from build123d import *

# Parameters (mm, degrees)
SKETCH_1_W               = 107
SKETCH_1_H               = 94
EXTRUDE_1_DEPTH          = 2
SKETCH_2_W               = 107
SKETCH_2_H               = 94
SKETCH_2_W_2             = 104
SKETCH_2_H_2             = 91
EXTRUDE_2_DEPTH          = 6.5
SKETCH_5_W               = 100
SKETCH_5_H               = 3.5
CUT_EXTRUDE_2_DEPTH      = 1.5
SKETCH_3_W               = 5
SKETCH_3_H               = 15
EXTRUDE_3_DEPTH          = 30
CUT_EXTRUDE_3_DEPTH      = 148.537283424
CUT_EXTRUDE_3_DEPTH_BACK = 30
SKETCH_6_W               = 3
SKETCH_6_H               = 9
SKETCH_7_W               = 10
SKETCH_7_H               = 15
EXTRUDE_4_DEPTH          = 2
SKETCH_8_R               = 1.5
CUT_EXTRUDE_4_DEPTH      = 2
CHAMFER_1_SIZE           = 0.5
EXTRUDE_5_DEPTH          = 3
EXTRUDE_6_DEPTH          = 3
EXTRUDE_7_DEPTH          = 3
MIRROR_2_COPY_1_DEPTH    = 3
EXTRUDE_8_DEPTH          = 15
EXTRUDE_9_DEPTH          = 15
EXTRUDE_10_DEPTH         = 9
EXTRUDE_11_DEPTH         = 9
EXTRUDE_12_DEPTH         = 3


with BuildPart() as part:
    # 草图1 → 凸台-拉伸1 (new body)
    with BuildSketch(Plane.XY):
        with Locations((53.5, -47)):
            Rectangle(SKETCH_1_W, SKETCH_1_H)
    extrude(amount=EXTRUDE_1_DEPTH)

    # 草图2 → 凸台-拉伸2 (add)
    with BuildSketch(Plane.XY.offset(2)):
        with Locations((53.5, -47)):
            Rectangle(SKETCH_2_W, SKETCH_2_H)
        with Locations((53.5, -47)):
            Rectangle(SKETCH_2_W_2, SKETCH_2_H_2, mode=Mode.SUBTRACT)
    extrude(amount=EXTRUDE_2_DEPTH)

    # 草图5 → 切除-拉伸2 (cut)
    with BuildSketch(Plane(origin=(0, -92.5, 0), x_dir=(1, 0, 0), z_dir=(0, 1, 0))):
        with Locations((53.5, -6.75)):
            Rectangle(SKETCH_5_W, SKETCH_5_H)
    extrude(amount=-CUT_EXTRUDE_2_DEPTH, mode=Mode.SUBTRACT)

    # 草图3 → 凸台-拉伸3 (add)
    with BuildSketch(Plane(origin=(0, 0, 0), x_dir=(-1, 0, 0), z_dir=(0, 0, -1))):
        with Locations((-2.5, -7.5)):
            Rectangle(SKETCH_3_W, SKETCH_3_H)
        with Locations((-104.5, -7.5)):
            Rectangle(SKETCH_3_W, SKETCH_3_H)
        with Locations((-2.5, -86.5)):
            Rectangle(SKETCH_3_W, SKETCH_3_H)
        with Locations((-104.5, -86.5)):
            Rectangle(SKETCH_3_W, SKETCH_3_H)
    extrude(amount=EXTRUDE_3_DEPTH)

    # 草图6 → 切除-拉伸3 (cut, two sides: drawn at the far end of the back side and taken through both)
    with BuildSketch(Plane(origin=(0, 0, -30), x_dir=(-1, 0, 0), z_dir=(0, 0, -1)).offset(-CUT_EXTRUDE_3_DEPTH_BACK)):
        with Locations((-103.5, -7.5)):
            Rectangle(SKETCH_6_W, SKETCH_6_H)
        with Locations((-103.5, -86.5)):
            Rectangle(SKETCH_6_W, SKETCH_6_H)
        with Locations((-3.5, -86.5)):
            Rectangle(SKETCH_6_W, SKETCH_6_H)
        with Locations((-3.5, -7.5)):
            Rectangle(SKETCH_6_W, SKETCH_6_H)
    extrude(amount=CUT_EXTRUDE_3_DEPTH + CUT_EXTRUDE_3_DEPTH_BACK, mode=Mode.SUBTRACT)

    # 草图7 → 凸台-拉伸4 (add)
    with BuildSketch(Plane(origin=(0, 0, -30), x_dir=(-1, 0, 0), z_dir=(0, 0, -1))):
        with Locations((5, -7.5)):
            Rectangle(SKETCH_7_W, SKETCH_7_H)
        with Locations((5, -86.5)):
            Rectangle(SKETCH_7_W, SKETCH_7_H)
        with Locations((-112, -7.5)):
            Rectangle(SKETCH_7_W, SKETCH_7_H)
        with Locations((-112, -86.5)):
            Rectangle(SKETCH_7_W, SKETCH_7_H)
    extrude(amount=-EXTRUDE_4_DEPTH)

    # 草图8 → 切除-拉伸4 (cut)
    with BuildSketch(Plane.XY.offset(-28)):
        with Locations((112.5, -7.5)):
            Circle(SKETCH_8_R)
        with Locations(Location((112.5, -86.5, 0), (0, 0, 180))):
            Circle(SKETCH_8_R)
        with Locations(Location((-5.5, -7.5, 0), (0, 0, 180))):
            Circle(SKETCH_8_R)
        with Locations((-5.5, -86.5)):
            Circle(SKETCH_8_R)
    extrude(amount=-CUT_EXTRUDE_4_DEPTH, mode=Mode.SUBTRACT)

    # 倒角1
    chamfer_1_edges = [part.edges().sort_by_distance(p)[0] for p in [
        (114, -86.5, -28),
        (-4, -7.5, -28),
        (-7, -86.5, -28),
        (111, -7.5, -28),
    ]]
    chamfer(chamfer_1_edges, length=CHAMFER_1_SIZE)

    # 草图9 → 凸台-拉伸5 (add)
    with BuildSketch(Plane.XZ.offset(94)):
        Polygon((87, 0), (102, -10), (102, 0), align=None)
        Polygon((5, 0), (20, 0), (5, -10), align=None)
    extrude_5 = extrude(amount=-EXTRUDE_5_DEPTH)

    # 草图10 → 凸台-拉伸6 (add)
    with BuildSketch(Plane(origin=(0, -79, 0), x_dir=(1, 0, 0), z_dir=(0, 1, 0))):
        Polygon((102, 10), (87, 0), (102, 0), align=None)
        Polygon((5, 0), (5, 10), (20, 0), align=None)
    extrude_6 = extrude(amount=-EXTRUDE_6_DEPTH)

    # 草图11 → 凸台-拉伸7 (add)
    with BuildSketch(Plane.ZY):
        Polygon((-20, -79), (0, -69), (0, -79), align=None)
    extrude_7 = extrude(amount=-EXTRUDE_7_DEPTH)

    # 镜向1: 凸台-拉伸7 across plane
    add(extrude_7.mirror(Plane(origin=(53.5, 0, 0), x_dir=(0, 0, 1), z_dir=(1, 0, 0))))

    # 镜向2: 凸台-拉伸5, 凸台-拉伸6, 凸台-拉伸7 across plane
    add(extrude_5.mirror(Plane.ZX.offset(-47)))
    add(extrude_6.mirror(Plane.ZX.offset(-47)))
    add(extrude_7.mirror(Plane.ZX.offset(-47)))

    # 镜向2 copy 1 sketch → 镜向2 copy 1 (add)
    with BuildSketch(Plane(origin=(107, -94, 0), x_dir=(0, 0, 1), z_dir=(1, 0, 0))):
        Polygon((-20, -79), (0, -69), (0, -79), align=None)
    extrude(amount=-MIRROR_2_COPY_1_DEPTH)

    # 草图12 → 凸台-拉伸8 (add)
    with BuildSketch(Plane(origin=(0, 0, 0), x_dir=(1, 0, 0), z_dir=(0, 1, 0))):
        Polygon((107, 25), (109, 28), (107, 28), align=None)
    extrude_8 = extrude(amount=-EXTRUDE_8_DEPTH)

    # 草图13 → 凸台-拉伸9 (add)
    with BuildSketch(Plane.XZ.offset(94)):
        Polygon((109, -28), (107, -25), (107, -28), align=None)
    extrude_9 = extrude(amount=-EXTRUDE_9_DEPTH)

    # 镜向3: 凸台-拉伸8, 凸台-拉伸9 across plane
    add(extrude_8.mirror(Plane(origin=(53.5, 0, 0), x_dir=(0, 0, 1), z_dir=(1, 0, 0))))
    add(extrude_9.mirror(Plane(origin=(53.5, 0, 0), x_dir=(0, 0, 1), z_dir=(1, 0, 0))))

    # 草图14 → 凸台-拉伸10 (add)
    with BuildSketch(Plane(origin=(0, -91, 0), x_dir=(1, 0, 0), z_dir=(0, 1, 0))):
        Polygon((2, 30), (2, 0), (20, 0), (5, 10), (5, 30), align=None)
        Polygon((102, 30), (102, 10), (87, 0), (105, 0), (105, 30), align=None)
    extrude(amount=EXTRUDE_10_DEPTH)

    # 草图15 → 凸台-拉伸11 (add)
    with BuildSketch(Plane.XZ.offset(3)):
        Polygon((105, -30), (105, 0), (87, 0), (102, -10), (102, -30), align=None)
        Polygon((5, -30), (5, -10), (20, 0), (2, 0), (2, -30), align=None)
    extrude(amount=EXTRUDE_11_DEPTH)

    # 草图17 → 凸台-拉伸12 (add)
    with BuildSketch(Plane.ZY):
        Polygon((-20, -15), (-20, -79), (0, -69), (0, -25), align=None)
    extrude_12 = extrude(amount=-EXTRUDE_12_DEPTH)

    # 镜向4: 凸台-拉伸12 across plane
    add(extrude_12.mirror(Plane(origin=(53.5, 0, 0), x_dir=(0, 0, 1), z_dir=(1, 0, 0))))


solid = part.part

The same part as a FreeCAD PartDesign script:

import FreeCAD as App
import Part
import Sketcher
from FreeCAD import Vector
Q = App.Units.Quantity


def edges_at(feature, points):
    """Names of the edges that pass closest to the given points."""
    edges = feature.Shape.Edges
    near = lambda p: min(range(len(edges)), key=lambda i: edges[i].distToShape(Part.Vertex(*p))[0])
    return sorted({f"Edge{near(p) + 1}" for p in points})

doc = App.newDocument("Part")
params = doc.addObject("Spreadsheet::Sheet", "Params")
for row, (alias, value) in enumerate([
    ("sketch1_width", "107 mm"),
    ("sketch1_height", "94 mm"),
    ("pad1_length", "2 mm"),
    ("sketch2_width", "107 mm"),
    ("sketch2_width2", "104 mm"),
    ("sketch2_height", "94 mm"),
    ("sketch2_height2", "91 mm"),
    ("pad2_length", "6.5 mm"),
    ("sketch3_width", "100 mm"),
    ("sketch3_height", "3.5 mm"),
    ("pocket1_length", "1.5 mm"),
    ("sketch4_width", "5 mm"),
    ("sketch4_height", "15 mm"),
    ("pad3_length", "30 mm"),
    ("sketch5_width", "3 mm"),
    ("sketch5_height", "9 mm"),
    ("pocket2_length", "148.537283 mm"),
    ("pocket2_length2", "30 mm"),
    ("sketch6_width", "10 mm"),
    ("sketch6_height", "15 mm"),
    ("pad4_length", "2 mm"),
    ("sketch7_diameter", "3 mm"),
    ("pocket3_length", "2 mm"),
    ("chamfer_size", "0.5 mm"),
    ("sketch8_width", "15 mm"),
    ("sketch8_height", "10 mm"),
    ("pad5_length", "3 mm"),
    ("sketch9_width", "15 mm"),
    ("sketch9_height", "10 mm"),
    ("pad6_length", "3 mm"),
    ("sketch10_width", "10 mm"),
    ("sketch10_height", "20 mm"),
    ("pad7_length", "3 mm"),
    ("sketch11_width", "10 mm"),
    ("sketch11_height", "20 mm"),
    ("pad8_length", "3 mm"),
    ("sketch12_width", "2 mm"),
    ("sketch12_height", "3 mm"),
    ("pad9_length", "15 mm"),
    ("sketch13_width", "2 mm"),
    ("sketch13_height", "3 mm"),
    ("pad10_length", "15 mm"),
    ("sketch14_width", "18 mm"),
    ("sketch14_width2", "3 mm"),
    ("sketch14_height", "30 mm"),
    ("sketch14_height2", "20 mm"),
    ("pad11_length", "9 mm"),
    ("sketch15_width", "18 mm"),
    ("sketch15_width2", "3 mm"),
    ("sketch15_height", "30 mm"),
    ("sketch15_height2", "20 mm"),
    ("pad12_length", "9 mm"),
    ("sketch16_width", "64 mm"),
    ("sketch16_width2", "44 mm"),
    ("pad13_length", "3 mm"),
], start=1):
    params.set(f"A{row}", alias)
    params.set(f"B{row}", "=" + value)
    params.setAlias(f"B{row}", alias)

body = doc.addObject("PartDesign::Body", "Body")

# Sketch on XY plane
sketch1 = body.newObject("Sketcher::SketchObject", "Sketch")
sketch1.AttachmentSupport = (doc.getObject("XY_Plane"), [""])
sketch1.MapMode = "FlatFace"
sketch1.addGeometry([
    Part.LineSegment(Vector(0, 0, 0), Vector(0, -94, 0)),
    Part.LineSegment(Vector(0, -94, 0), Vector(107, -94, 0)),
    Part.LineSegment(Vector(107, -94, 0), Vector(107, 0, 0)),
    Part.LineSegment(Vector(107, 0, 0), Vector(0, 0, 0)),
], False)
sketch1.addConstraint([
    Sketcher.Constraint("Coincident", 0, 2, 1, 1),
    Sketcher.Constraint("Coincident", 1, 2, 2, 1),
    Sketcher.Constraint("Coincident", 2, 2, 3, 1),
    Sketcher.Constraint("Coincident", 3, 2, 0, 1),
    Sketcher.Constraint("Vertical", 0),
    Sketcher.Constraint("Horizontal", 1),
    Sketcher.Constraint("Vertical", 2),
    Sketcher.Constraint("Horizontal", 3),
    Sketcher.Constraint("Coincident", 3, 2, -1, 1),
    Sketcher.Constraint("DistanceX", 1, 1, 1, 2, Q("107 mm")),
    Sketcher.Constraint("DistanceY", 0, 2, 0, 1, Q("94 mm")),
])
sketch1.setExpression("Constraints[9]", "Params.sketch1_width")
sketch1.setExpression("Constraints[10]", "Params.sketch1_height")
pad1 = body.newObject("PartDesign::Pad", "Pad")
pad1.Profile = sketch1
pad1.setExpression("Length", "Params.pad1_length")

# Sketch on XY plane
sketch2 = body.newObject("Sketcher::SketchObject", "Sketch001")
sketch2.AttachmentSupport = (doc.getObject("XY_Plane"), [""])
sketch2.MapMode = "FlatFace"
sketch2.AttachmentOffset = App.Placement(Vector(0, 0, 2), App.Rotation())
sketch2.addGeometry([
    Part.LineSegment(Vector(0, 0, 0), Vector(0, -94, 0)),  # 0
    Part.LineSegment(Vector(0, -94, 0), Vector(107, -94, 0)),  # 1
    Part.LineSegment(Vector(107, -94, 0), Vector(107, 0, 0)),  # 2
    Part.LineSegment(Vector(107, 0, 0), Vector(0, 0, 0)),  # 3
    Part.LineSegment(Vector(106, -92, 0), Vector(2, -92, 0)),  # 4
    Part.LineSegment(Vector(2, -92, 0), Vector(2, -2, 0)),  # 5
    Part.LineSegment(Vector(2, -2, 0), Vector(106, -2, 0)),  # 6
    Part.LineSegment(Vector(106, -2, 0), Vector(106, -92, 0)),  # 7
], False)
sketch2.addConstraint([
    Sketcher.Constraint("Coincident", 0, 2, 1, 1),
    Sketcher.Constraint("Coincident", 1, 2, 2, 1),
    Sketcher.Constraint("Coincident", 2, 2, 3, 1),
    Sketcher.Constraint("Coincident", 3, 2, 0, 1),
    Sketcher.Constraint("Coincident", 4, 2, 5, 1),
    Sketcher.Constraint("Coincident", 5, 2, 6, 1),
    Sketcher.Constraint("Coincident", 6, 2, 7, 1),
    Sketcher.Constraint("Coincident", 7, 2, 4, 1),
    Sketcher.Constraint("Vertical", 0),
    Sketcher.Constraint("Horizontal", 1),
    Sketcher.Constraint("Vertical", 2),
    Sketcher.Constraint("Horizontal", 3),
    Sketcher.Constraint("Horizontal", 4),
    Sketcher.Constraint("Vertical", 5),
    Sketcher.Constraint("Horizontal", 6),
    Sketcher.Constraint("Vertical", 7),
    Sketcher.Constraint("Coincident", 3, 2, -1, 1),
    Sketcher.Constraint("DistanceX", 1, 1, 1, 2, Q("107 mm")),
    Sketcher.Constraint("DistanceX", 4, 2, 4, 1, Q("104 mm")),
    Sketcher.Constraint("DistanceY", 0, 2, 0, 1, Q("94 mm")),
    Sketcher.Constraint("DistanceY", 5, 1, 5, 2, Q("91 mm")),
    Sketcher.Constraint("DistanceX", -1, 1, 4, 2, Q("1.5 mm")),
    Sketcher.Constraint("DistanceY", 4, 2, -1, 1, Q("92.5 mm")),
])
sketch2.setExpression("Constraints[17]", "Params.sketch2_width")
sketch2.setExpression("Constraints[18]", "Params.sketch2_width2")
sketch2.setExpression("Constraints[19]", "Params.sketch2_height")
sketch2.setExpression("Constraints[20]", "Params.sketch2_height2")
pad2 = body.newObject("PartDesign::Pad", "Pad001")
pad2.Profile = sketch2
pad2.setExpression("Length", "Params.pad2_length")

# Sketch on XZ plane
sketch3 = body.newObject("Sketcher::SketchObject", "Sketch002")
sketch3.AttachmentSupport = (doc.getObject("XZ_Plane"), [""])
sketch3.MapMode = "FlatFace"
sketch3.AttachmentOffset = App.Placement(Vector(0, 0, 92.5), App.Rotation())
sketch3.addGeometry([
    Part.LineSegment(Vector(3.5, 5, 0), Vector(3.5, 8.5, 0)),
    Part.LineSegment(Vector(3.5, 8.5, 0), Vector(103.5, 8.5, 0)),
    Part.LineSegment(Vector(103.5, 8.5, 0), Vector(103.5, 5, 0)),
    Part.LineSegment(Vector(103.5, 5, 0), Vector(3.5, 5, 0)),
], False)
sketch3.addConstraint([
    Sketcher.Constraint("Coincident", 0, 2, 1, 1),
    Sketcher.Constraint("Coincident", 1, 2, 2, 1),
    Sketcher.Constraint("Coincident", 2, 2, 3, 1),
    Sketcher.Constraint("Coincident", 3, 2, 0, 1),
    Sketcher.Constraint("Vertical", 0),
    Sketcher.Constraint("Horizontal", 1),
    Sketcher.Constraint("Vertical", 2),
    Sketcher.Constraint("Horizontal", 3),
    Sketcher.Constraint("DistanceX", 1, 1, 1, 2, Q("100 mm")),
    Sketcher.Constraint("DistanceY", 0, 1, 0, 2, Q("3.5 mm")),
    Sketcher.Constraint("DistanceY", -1, 1, 2, 2, Q("5 mm")),
    Sketcher.Constraint("DistanceX", -1, 1, 0, 2, Q("3.5 mm")),
])
sketch3.setExpression("Constraints[8]", "Params.sketch3_width")
sketch3.setExpression("Constraints[9]", "Params.sketch3_height")
pocket1 = body.newObject("PartDesign::Pocket", "Pocket")
pocket1.Profile = sketch3
pocket1.setExpression("Length", "Params.pocket1_length")
pocket1.Reversed = True

# Sketch on XY plane
sketch4 = body.newObject("Sketcher::SketchObject", "Sketch003")
sketch4.AttachmentSupport = (doc.getObject("XY_Plane"), [""])
sketch4.MapMode = "FlatFace"
sketch4.addGeometry([
    Part.LineSegment(Vector(5, 0, 0), Vector(5, -15, 0)),  # 0
    Part.LineSegment(Vector(5, -15, 0), Vector(0, -15, 0)),  # 1
    Part.LineSegment(Vector(0, -15, 0), Vector(0, 0, 0)),  # 2
    Part.LineSegment(Vector(0, 0, 0), Vector(5, 0, 0)),  # 3
    Part.LineSegment(Vector(107, 0, 0), Vector(107, -15, 0)),  # 4
    Part.LineSegment(Vector(107, -15, 0), Vector(102, -15, 0)),  # 5
    Part.LineSegment(Vector(102, -15, 0), Vector(102, 0, 0)),  # 6
    Part.LineSegment(Vector(102, 0, 0), Vector(107, 0, 0)),  # 7
    Part.LineSegment(Vector(5, -79, 0), Vector(5, -94, 0)),  # 8
    Part.LineSegment(Vector(5, -94, 0), Vector(0, -94, 0)),  # 9
    Part.LineSegment(Vector(0, -94, 0), Vector(0, -79, 0)),  # 10
    Part.LineSegment(Vector(0, -79, 0), Vector(5, -79, 0)),  # 11
    Part.LineSegment(Vector(107, -79, 0), Vector(107, -94, 0)),  # 12
    Part.LineSegment(Vector(107, -94, 0), Vector(102, -94, 0)),  # 13
    Part.LineSegment(Vector(102, -94, 0), Vector(102, -79, 0)),  # 14
    Part.LineSegment(Vector(102, -79, 0), Vector(107, -79, 0)),  # 15
], False)
sketch4.addConstraint([
    Sketcher.Constraint("Coincident", 0, 2, 1, 1),
    Sketcher.Constraint("Coincident", 1, 2, 2, 1),
    Sketcher.Constraint("Coincident", 2, 2, 3, 1),
    Sketcher.Constraint("Coincident", 3, 2, 0, 1),
    Sketcher.Constraint("Coincident", 4, 2, 5, 1),
    Sketcher.Constraint("Coincident", 5, 2, 6, 1),
    Sketcher.Constraint("Coincident", 6, 2, 7, 1),
    Sketcher.Constraint("Coincident", 7, 2, 4, 1),
    Sketcher.Constraint("Coincident", 8, 2, 9, 1),
    Sketcher.Constraint("Coincident", 9, 2, 10, 1),
    Sketcher.Constraint("Coincident", 10, 2, 11, 1),
    Sketcher.Constraint("Coincident", 11, 2, 8, 1),
    Sketcher.Constraint("Coincident", 12, 2, 13, 1),
    Sketcher.Constraint("Coincident", 13, 2, 14, 1),
    Sketcher.Constraint("Coincident", 14, 2, 15, 1),
    Sketcher.Constraint("Coincident", 15, 2, 12, 1),
    Sketcher.Constraint("Vertical", 0),
    Sketcher.Constraint("Horizontal", 1),
    Sketcher.Constraint("Vertical", 2),
    Sketcher.Constraint("Horizontal", 3),
    Sketcher.Constraint("Vertical", 4),
    Sketcher.Constraint("Horizontal", 5),
    Sketcher.Constraint("Vertical", 6),
    Sketcher.Constraint("Horizontal", 7),
    Sketcher.Constraint("Vertical", 8),
    Sketcher.Constraint("Horizontal", 9),
    Sketcher.Constraint("Vertical", 10),
    Sketcher.Constraint("Horizontal", 11),
    Sketcher.Constraint("Vertical", 12),
    Sketcher.Constraint("Horizontal", 13),
    Sketcher.Constraint("Vertical", 14),
    Sketcher.Constraint("Horizontal", 15),
    Sketcher.Constraint("Coincident", 2, 2, -1, 1),
    Sketcher.Constraint("PointOnObject", 6, 2, -1),
    Sketcher.Constraint("PointOnObject", 9, 2, -2),
    Sketcher.Constraint("Horizontal", 1, 2, 4, 2),
    Sketcher.Constraint("Horizontal", 9, 2, 12, 2),
    Sketcher.Constraint("Horizontal", 11, 2, 14, 2),
    Sketcher.Constraint("Vertical", 3, 2, 8, 2),
    Sketcher.Constraint("Vertical", 7, 2, 12, 2),
    Sketcher.Constraint("Vertical", 6, 2, 13, 2),
    Sketcher.Constraint("Equal", 3, 5),
    Sketcher.Constraint("Equal", 6, 8),
    Sketcher.Constraint("DistanceX", 1, 2, 1, 1, Q("5 mm")),
    Sketcher.Constraint("DistanceY", 0, 2, 0, 1, Q("15 mm")),
    Sketcher.Constraint("DistanceX", -1, 1, 4, 2, Q("107 mm")),
    Sketcher.Constraint("DistanceY", 8, 2, -1, 1, Q("94 mm")),
])
sketch4.setExpression("Constraints[43]", "Params.sketch4_width")
sketch4.setExpression("Constraints[44]", "Params.sketch4_height")
pad3 = body.newObject("PartDesign::Pad", "Pad002")
pad3.Profile = sketch4
pad3.setExpression("Length", "Params.pad3_length")
pad3.Reversed = True

# Sketch on XY plane
sketch5 = body.newObject("Sketcher::SketchObject", "Sketch004")
sketch5.AttachmentSupport = (doc.getObject("XY_Plane"), [""])
sketch5.MapMode = "FlatFace"
sketch5.AttachmentOffset = App.Placement(Vector(0, 0, -30), App.Rotation())
sketch5.addGeometry([
    Part.LineSegment(Vector(105, -3, 0), Vector(105, -12, 0)),  # 0
    Part.LineSegment(Vector(105, -12, 0), Vector(102, -12, 0)),  # 1
    Part.LineSegment(Vector(102, -12, 0), Vector(102, -3, 0)),  # 2
    Part.LineSegment(Vector(102, -3, 0), Vector(105, -3, 0)),  # 3
    Part.LineSegment(Vector(105, -82, 0), Vector(105, -91, 0)),  # 4
    Part.LineSegment(Vector(105, -91, 0), Vector(102, -91, 0)),  # 5
    Part.LineSegment(Vector(102, -91, 0), Vector(102, -82, 0)),  # 6
    Part.LineSegment(Vector(102, -82, 0), Vector(105, -82, 0)),  # 7
    Part.LineSegment(Vector(5, -82, 0), Vector(5, -91, 0)),  # 8
    Part.LineSegment(Vector(5, -91, 0), Vector(2, -91, 0)),  # 9
    Part.LineSegment(Vector(2, -91, 0), Vector(2, -82, 0)),  # 10
    Part.LineSegment(Vector(2, -82, 0), Vector(5, -82, 0)),  # 11
    Part.LineSegment(Vector(5, -3, 0), Vector(5, -12, 0)),  # 12
    Part.LineSegment(Vector(5, -12, 0), Vector(2, -12, 0)),  # 13
    Part.LineSegment(Vector(2, -12, 0), Vector(2, -3, 0)),  # 14
    Part.LineSegment(Vector(2, -3, 0), Vector(5, -3, 0)),  # 15
], False)
sketch5.addConstraint([
    Sketcher.Constraint("Coincident", 0, 2, 1, 1),
    Sketcher.Constraint("Coincident", 1, 2, 2, 1),
    Sketcher.Constraint("Coincident", 2, 2, 3, 1),
    Sketcher.Constraint("Coincident", 3, 2, 0, 1),
    Sketcher.Constraint("Coincident", 4, 2, 5, 1),
    Sketcher.Constraint("Coincident", 5, 2, 6, 1),
    Sketcher.Constraint("Coincident", 6, 2, 7, 1),
    Sketcher.Constraint("Coincident", 7, 2, 4, 1),
    Sketcher.Constraint("Coincident", 8, 2, 9, 1),
    Sketcher.Constraint("Coincident", 9, 2, 10, 1),
    Sketcher.Constraint("Coincident", 10, 2, 11, 1),
    Sketcher.Constraint("Coincident", 11, 2, 8, 1),
    Sketcher.Constraint("Coincident", 12, 2, 13, 1),
    Sketcher.Constraint("Coincident", 13, 2, 14, 1),
    Sketcher.Constraint("Coincident", 14, 2, 15, 1),
    Sketcher.Constraint("Coincident", 15, 2, 12, 1),
    Sketcher.Constraint("Vertical", 0),
    Sketcher.Constraint("Horizontal", 1),
    Sketcher.Constraint("Vertical", 2),
    Sketcher.Constraint("Horizontal", 3),
    Sketcher.Constraint("Vertical", 4),
    Sketcher.Constraint("Horizontal", 5),
    Sketcher.Constraint("Vertical", 6),
    Sketcher.Constraint("Horizontal", 7),
    Sketcher.Constraint("Vertical", 8),
    Sketcher.Constraint("Horizontal", 9),
    Sketcher.Constraint("Vertical", 10),
    Sketcher.Constraint("Horizontal", 11),
    Sketcher.Constraint("Vertical", 12),
    Sketcher.Constraint("Horizontal", 13),
    Sketcher.Constraint("Vertical", 14),
    Sketcher.Constraint("Horizontal", 15),
    Sketcher.Constraint("Horizontal", 5, 2, 8, 2),
    Sketcher.Constraint("Horizontal", 7, 2, 10, 2),
    Sketcher.Constraint("Horizontal", 1, 2, 12, 2),
    Sketcher.Constraint("Horizontal", 3, 2, 14, 2),
    Sketcher.Constraint("Vertical", 3, 2, 4, 2),
    Sketcher.Constraint("Vertical", 2, 2, 5, 2),
    Sketcher.Constraint("Vertical", 11, 2, 12, 2),
    Sketcher.Constraint("Vertical", 10, 2, 13, 2),
    Sketcher.Constraint("Equal", 7, 9),
    Sketcher.Constraint("Equal", 2, 4),
    Sketcher.Constraint("DistanceX", 1, 2, 1, 1, Q("3 mm")),
    Sketcher.Constraint("DistanceY", 0, 2, 0, 1, Q("9 mm")),
    Sketcher.Constraint("DistanceX", -1, 1, 0, 2, Q("105 mm")),
    Sketcher.Constraint("DistanceY", 0, 2, -1, 1, Q("12 mm")),
    Sketcher.Constraint("DistanceY", 4, 2, -1, 1, Q("91 mm")),
    Sketcher.Constraint("DistanceX", -1, 1, 8, 2, Q("5 mm")),
])
sketch5.setExpression("Constraints[42]", "Params.sketch5_width")
sketch5.setExpression("Constraints[43]", "Params.sketch5_height")
pocket2 = body.newObject("PartDesign::Pocket", "Pocket001")
pocket2.Profile = sketch5
pocket2.Type = "TwoLengths"
pocket2.setExpression("Length", "Params.pocket2_length")
pocket2.setExpression("Length2", "Params.pocket2_length2")

# Sketch on XY plane
sketch6 = body.newObject("Sketcher::SketchObject", "Sketch005")
sketch6.AttachmentSupport = (doc.getObject("XY_Plane"), [""])
sketch6.MapMode = "FlatFace"
sketch6.AttachmentOffset = App.Placement(Vector(0, 0, -30), App.Rotation())
sketch6.addGeometry([
    Part.LineSegment(Vector(0, 0, 0), Vector(0, -15, 0)),  # 0
    Part.LineSegment(Vector(0, -15, 0), Vector(-10, -15, 0)),  # 1
    Part.LineSegment(Vector(-10, -15, 0), Vector(-10, 0, 0)),  # 2
    Part.LineSegment(Vector(-10, 0, 0), Vector(0, 0, 0)),  # 3
    Part.LineSegment(Vector(0, -79, 0), Vector(0, -94, 0)),  # 4
    Part.LineSegment(Vector(0, -94, 0), Vector(-10, -94, 0)),  # 5
    Part.LineSegment(Vector(-10, -94, 0), Vector(-10, -79, 0)),  # 6
    Part.LineSegment(Vector(-10, -79, 0), Vector(0, -79, 0)),  # 7
    Part.LineSegment(Vector(117, 0, 0), Vector(117, -15, 0)),  # 8
    Part.LineSegment(Vector(117, -15, 0), Vector(107, -15, 0)),  # 9
    Part.LineSegment(Vector(107, -15, 0), Vector(107, 0, 0)),  # 10
    Part.LineSegment(Vector(107, 0, 0), Vector(117, 0, 0)),  # 11
    Part.LineSegment(Vector(117, -79, 0), Vector(117, -94, 0)),  # 12
    Part.LineSegment(Vector(117, -94, 0), Vector(107, -94, 0)),  # 13
    Part.LineSegment(Vector(107, -94, 0), Vector(107, -79, 0)),  # 14
    Part.LineSegment(Vector(107, -79, 0), Vector(117, -79, 0)),  # 15
], False)
sketch6.addConstraint([
    Sketcher.Constraint("Coincident", 0, 2, 1, 1),
    Sketcher.Constraint("Coincident", 1, 2, 2, 1),
    Sketcher.Constraint("Coincident", 2, 2, 3, 1),
    Sketcher.Constraint("Coincident", 3, 2, 0, 1),
    Sketcher.Constraint("Coincident", 4, 2, 5, 1),
    Sketcher.Constraint("Coincident", 5, 2, 6, 1),
    Sketcher.Constraint("Coincident", 6, 2, 7, 1),
    Sketcher.Constraint("Coincident", 7, 2, 4, 1),
    Sketcher.Constraint("Coincident", 8, 2, 9, 1),
    Sketcher.Constraint("Coincident", 9, 2, 10, 1),
    Sketcher.Constraint("Coincident", 10, 2, 11, 1),
    Sketcher.Constraint("Coincident", 11, 2, 8, 1),
    Sketcher.Constraint("Coincident", 12, 2, 13, 1),
    Sketcher.Constraint("Coincident", 13, 2, 14, 1),
    Sketcher.Constraint("Coincident", 14, 2, 15, 1),
    Sketcher.Constraint("Coincident", 15, 2, 12, 1),
    Sketcher.Constraint("Vertical", 0),
    Sketcher.Constraint("Horizontal", 1),
    Sketcher.Constraint("Vertical", 2),
    Sketcher.Constraint("Horizontal", 3),
    Sketcher.Constraint("Vertical", 4),
    Sketcher.Constraint("Horizontal", 5),
    Sketcher.Constraint("Vertical", 6),
    Sketcher.Constraint("Horizontal", 7),
    Sketcher.Constraint("Vertical", 8),
    Sketcher.Constraint("Horizontal", 9),
    Sketcher.Constraint("Vertical", 10),
    Sketcher.Constraint("Horizontal", 11),
    Sketcher.Constraint("Vertical", 12),
    Sketcher.Constraint("Horizontal", 13),
    Sketcher.Constraint("Vertical", 14),
    Sketcher.Constraint("Horizontal", 15),
    Sketcher.Constraint("Coincident", 3, 2, -1, 1),
    Sketcher.Constraint("PointOnObject", 4, 2, -2),
    Sketcher.Constraint("PointOnObject", 10, 2, -1),
    Sketcher.Constraint("Horizontal", 1, 2, 8, 2),
    Sketcher.Constraint("Horizontal", 5, 2, 12, 2),
    Sketcher.Constraint("Horizontal", 7, 2, 14, 2),
    Sketcher.Constraint("Vertical", 2, 2, 5, 2),
    Sketcher.Constraint("Vertical", 11, 2, 12, 2),
    Sketcher.Constraint("Vertical", 10, 2, 13, 2),
    Sketcher.Constraint("Equal", 7, 9),
    Sketcher.Constraint("Equal", 2, 4),
    Sketcher.Constraint("DistanceX", 1, 2, 1, 1, Q("10 mm")),
    Sketcher.Constraint("DistanceY", 0, 2, 0, 1, Q("15 mm")),
    Sketcher.Constraint("DistanceY", 4, 2, -1, 1, Q("94 mm")),
    Sketcher.Constraint("DistanceX", -1, 1, 8, 2, Q("117 mm")),
])
sketch6.setExpression("Constraints[43]", "Params.sketch6_width")
sketch6.setExpression("Constraints[44]", "Params.sketch6_height")
pad4 = body.newObject("PartDesign::Pad", "Pad003")
pad4.Profile = sketch6
pad4.setExpression("Length", "Params.pad4_length")

# Sketch on XY plane
sketch7 = body.newObject("Sketcher::SketchObject", "Sketch006")
sketch7.AttachmentSupport = (doc.getObject("XY_Plane"), [""])
sketch7.MapMode = "FlatFace"
sketch7.AttachmentOffset = App.Placement(Vector(0, 0, -28), App.Rotation())
sketch7.addGeometry([
    Part.Circle(Vector(112.5, -7.5, 0), Vector(0, 0, 1), 1.5),
    Part.Circle(Vector(112.5, -86.5, 0), Vector(0, 0, 1), 1.5),
    Part.Circle(Vector(-5.5, -7.5, 0), Vector(0, 0, 1), 1.5),
    Part.Circle(Vector(-5.5, -86.5, 0), Vector(0, 0, 1), 1.5),
], False)
sketch7.addConstraint([
    Sketcher.Constraint("Equal", 0, 1),
    Sketcher.Constraint("Equal", 1, 2),
    Sketcher.Constraint("Equal", 2, 3),
    Sketcher.Constraint("Horizontal", 0, 3, 2, 3),
    Sketcher.Constraint("Horizontal", 1, 3, 3, 3),
    Sketcher.Constraint("Vertical", 0, 3, 1, 3),
    Sketcher.Constraint("Vertical", 2, 3, 3, 3),
    Sketcher.Constraint("Diameter", 0, Q("3 mm")),
    Sketcher.Constraint("DistanceY", 1, 3, 0, 3, Q("79 mm")),
    Sketcher.Constraint("DistanceX", 2, 3, 0, 3, Q("118 mm")),
    Sketcher.Constraint("DistanceX", -1, 1, 0, 3, Q("112.5 mm")),
    Sketcher.Constraint("DistanceY", 0, 3, -1, 1, Q("7.5 mm")),
])
sketch7.setExpression("Constraints[7]", "Params.sketch7_diameter")
pocket3 = body.newObject("PartDesign::Pocket", "Pocket002")
pocket3.Profile = sketch7
pocket3.setExpression("Length", "Params.pocket3_length")
doc.recompute()

chamfer = body.newObject("PartDesign::Chamfer", "Chamfer")
chamfer.Base = (pocket3, edges_at(pocket3, [
    (114, -86.5, -28),
    (-4, -7.5, -28),
    (-7, -86.5, -28),
    (111, -7.5, -28),
]))
chamfer.setExpression("Size", "Params.chamfer_size")

# Sketch on XZ plane
sketch8 = body.newObject("Sketcher::SketchObject", "Sketch007")
sketch8.AttachmentSupport = (doc.getObject("XZ_Plane"), [""])
sketch8.MapMode = "FlatFace"
sketch8.AttachmentOffset = App.Placement(Vector(0, 0, 94), App.Rotation())
sketch8.addGeometry([
    Part.LineSegment(Vector(87, 0, 0), Vector(102, -10, 0)),  # 0
    Part.LineSegment(Vector(102, -10, 0), Vector(102, 0, 0)),  # 1
    Part.LineSegment(Vector(102, 0, 0), Vector(87, 0, 0)),  # 2
    Part.LineSegment(Vector(20, 0, 0), Vector(5, 0, 0)),  # 3
    Part.LineSegment(Vector(5, 0, 0), Vector(5, -10, 0)),  # 4
    Part.LineSegment(Vector(5, -10, 0), Vector(20, 0, 0)),  # 5
], False)
sketch8.addConstraint([
    Sketcher.Constraint("Coincident", 0, 2, 1, 1),
    Sketcher.Constraint("Coincident", 1, 2, 2, 1),
    Sketcher.Constraint("Coincident", 2, 2, 0, 1),
    Sketcher.Constraint("Coincident", 3, 2, 4, 1),
    Sketcher.Constraint("Coincident", 4, 2, 5, 1),
    Sketcher.Constraint("Coincident", 5, 2, 3, 1),
    Sketcher.Constraint("Vertical", 1),
    Sketcher.Constraint("Horizontal", 2),
    Sketcher.Constraint("Horizontal", 3),
    Sketcher.Constraint("Vertical", 4),
    Sketcher.Constraint("PointOnObject", 1, 2, -1),
    Sketcher.Constraint("PointOnObject", 3, 2, -1),
    Sketcher.Constraint("Horizontal", 0, 2, 4, 2),
    Sketcher.Constraint("Equal", 2, 3),
    Sketcher.Constraint("DistanceX", 2, 2, 2, 1, Q("15 mm")),
    Sketcher.Constraint("DistanceY", 1, 1, 1, 2, Q("10 mm")),
    Sketcher.Constraint("DistanceX", -1, 1, 0, 2, Q("102 mm")),
    Sketcher.Constraint("DistanceX", -1, 1, 3, 2, Q("5 mm")),
])
sketch8.setExpression("Constraints[14]", "Params.sketch8_width")
sketch8.setExpression("Constraints[15]", "Params.sketch8_height")
pad5 = body.newObject("PartDesign::Pad", "Pad004")
pad5.Profile = sketch8
pad5.setExpression("Length", "Params.pad5_length")
pad5.Reversed = True

# Sketch on XZ plane
sketch9 = body.newObject("Sketcher::SketchObject", "Sketch008")
sketch9.AttachmentSupport = (doc.getObject("XZ_Plane"), [""])
sketch9.MapMode = "FlatFace"
sketch9.AttachmentOffset = App.Placement(Vector(0, 0, 79), App.Rotation())
sketch9.addGeometry([
    Part.LineSegment(Vector(102, -10, 0), Vector(87, 0, 0)),  # 0
    Part.LineSegment(Vector(87, 0, 0), Vector(102, 0, 0)),  # 1
    Part.LineSegment(Vector(102, 0, 0), Vector(102, -10, 0)),  # 2
    Part.LineSegment(Vector(5, -10, 0), Vector(5, 0, 0)),  # 3
    Part.LineSegment(Vector(5, 0, 0), Vector(20, 0, 0)),  # 4
    Part.LineSegment(Vector(20, 0, 0), Vector(5, -10, 0)),  # 5
], False)
sketch9.addConstraint([
    Sketcher.Constraint("Coincident", 0, 2, 1, 1),
    Sketcher.Constraint("Coincident", 1, 2, 2, 1),
    Sketcher.Constraint("Coincident", 2, 2, 0, 1),
    Sketcher.Constraint("Coincident", 3, 2, 4, 1),
    Sketcher.Constraint("Coincident", 4, 2, 5, 1),
    Sketcher.Constraint("Coincident", 5, 2, 3, 1),
    Sketcher.Constraint("Horizontal", 1),
    Sketcher.Constraint("Vertical", 2),
    Sketcher.Constraint("Vertical", 3),
    Sketcher.Constraint("Horizontal", 4),
    Sketcher.Constraint("PointOnObject", 0, 2, -1),
    Sketcher.Constraint("PointOnObject", 3, 2, -1),
    Sketcher.Constraint("Horizontal", 2, 2, 5, 2),
    Sketcher.Constraint("Equal", 1, 4),
    Sketcher.Constraint("DistanceX", 1, 1, 1, 2, Q("15 mm")),
    Sketcher.Constraint("DistanceY", 2, 2, 2, 1, Q("10 mm")),
    Sketcher.Constraint("DistanceX", -1, 1, 0, 2, Q("87 mm")),
    Sketcher.Constraint("DistanceX", -1, 1, 3, 2, Q("5 mm")),
])
sketch9.setExpression("Constraints[14]", "Params.sketch9_width")
sketch9.setExpression("Constraints[15]", "Params.sketch9_height")
pad6 = body.newObject("PartDesign::Pad", "Pad005")
pad6.Profile = sketch9
pad6.setExpression("Length", "Params.pad6_length")

# Sketch on YZ plane
sketch10 = body.newObject("Sketcher::SketchObject", "Sketch009")
sketch10.AttachmentSupport = (doc.getObject("YZ_Plane"), [""])
sketch10.MapMode = "FlatFace"
sketch10.addGeometry([
    Part.LineSegment(Vector(-69, 0, 0), Vector(-79, -20, 0)),
    Part.LineSegment(Vector(-79, -20, 0), Vector(-79, 0, 0)),
    Part.LineSegment(Vector(-79, 0, 0), Vector(-69, 0, 0)),
], False)
sketch10.addConstraint([
    Sketcher.Constraint("Coincident", 0, 2, 1, 1),
    Sketcher.Constraint("Coincident", 1, 2, 2, 1),
    Sketcher.Constraint("Coincident", 2, 2, 0, 1),
    Sketcher.Constraint("Vertical", 1),
    Sketcher.Constraint("Horizontal", 2),
    Sketcher.Constraint("PointOnObject", 1, 2, -1),
    Sketcher.Constraint("DistanceX", 2, 1, 2, 2, Q("10 mm")),
    Sketcher.Constraint("DistanceY", 1, 1, 1, 2, Q("20 mm")),
    Sketcher.Constraint("DistanceX", 0, 2, -1, 1, Q("79 mm")),
])
sketch10.setExpression("Constraints[6]", "Params.sketch10_width")
sketch10.setExpression("Constraints[7]", "Params.sketch10_height")
pad7 = body.newObject("PartDesign::Pad", "Pad006")
pad7.Profile = sketch10
pad7.setExpression("Length", "Params.pad7_length")
doc.recompute()

datumplane = body.newObject("PartDesign::Plane", "DatumPlane")
datumplane.AttachmentSupport = (doc.getObject("YZ_Plane"), [""])
datumplane.MapMode = "FlatFace"
datumplane.AttachmentOffset = App.Placement(Vector(0, 0, 53.5), App.Rotation())
mirrored = body.newObject("PartDesign::Mirrored", "Mirrored")
mirrored.Originals = [pad7]
mirrored.MirrorPlane = (datumplane, [""])
body.Tip = mirrored
doc.recompute()

datumplane2 = body.newObject("PartDesign::Plane", "DatumPlane001")
datumplane2.AttachmentSupport = (doc.getObject("XZ_Plane"), [""])
datumplane2.MapMode = "FlatFace"
datumplane2.AttachmentOffset = App.Placement(Vector(0, 0, 47), App.Rotation())
mirrored2 = body.newObject("PartDesign::Mirrored", "Mirrored001")
mirrored2.Originals = [pad5, pad6, pad7]
mirrored2.MirrorPlane = (datumplane2, [""])
body.Tip = mirrored2

# Sketch on YZ plane
sketch11 = body.newObject("Sketcher::SketchObject", "Sketch010")
sketch11.AttachmentSupport = (doc.getObject("YZ_Plane"), [""])
sketch11.MapMode = "FlatFace"
sketch11.AttachmentOffset = App.Placement(Vector(0, 0, 107), App.Rotation())
sketch11.addGeometry([
    Part.LineSegment(Vector(-25, 0, 0), Vector(-15, -20, 0)),
    Part.LineSegment(Vector(-15, -20, 0), Vector(-15, 0, 0)),
    Part.LineSegment(Vector(-15, 0, 0), Vector(-25, 0, 0)),
], False)
sketch11.addConstraint([
    Sketcher.Constraint("Coincident", 0, 2, 1, 1),
    Sketcher.Constraint("Coincident", 1, 2, 2, 1),
    Sketcher.Constraint("Coincident", 2, 2, 0, 1),
    Sketcher.Constraint("Vertical", 1),
    Sketcher.Constraint("Horizontal", 2),
    Sketcher.Constraint("PointOnObject", 1, 2, -1),
    Sketcher.Constraint("DistanceX", 2, 2, 2, 1, Q("10 mm")),
    Sketcher.Constraint("DistanceY", 1, 1, 1, 2, Q("20 mm")),
    Sketcher.Constraint("DistanceX", 0, 2, -1, 1, Q("15 mm")),
])
sketch11.setExpression("Constraints[6]", "Params.sketch11_width")
sketch11.setExpression("Constraints[7]", "Params.sketch11_height")
pad8 = body.newObject("PartDesign::Pad", "Pad007")
pad8.Profile = sketch11
pad8.setExpression("Length", "Params.pad8_length")
pad8.Reversed = True

# Sketch on XZ plane
sketch12 = body.newObject("Sketcher::SketchObject", "Sketch011")
sketch12.AttachmentSupport = (doc.getObject("XZ_Plane"), [""])
sketch12.MapMode = "FlatFace"
sketch12.addGeometry([
    Part.LineSegment(Vector(107, -25, 0), Vector(109, -28, 0)),
    Part.LineSegment(Vector(109, -28, 0), Vector(107, -28, 0)),
    Part.LineSegment(Vector(107, -28, 0), Vector(107, -25, 0)),
], False)
sketch12.addConstraint([
    Sketcher.Constraint("Coincident", 0, 2, 1, 1),
    Sketcher.Constraint("Coincident", 1, 2, 2, 1),
    Sketcher.Constraint("Coincident", 2, 2, 0, 1),
    Sketcher.Constraint("Horizontal", 1),
    Sketcher.Constraint("Vertical", 2),
    Sketcher.Constraint("DistanceX", 1, 2, 1, 1, Q("2 mm")),
    Sketcher.Constraint("DistanceY", 2, 1, 2, 2, Q("3 mm")),
    Sketcher.Constraint("DistanceX", -1, 1, 0, 2, Q("109 mm")),
    Sketcher.Constraint("DistanceY", 0, 2, -1, 1, Q("28 mm")),
])
sketch12.setExpression("Constraints[5]", "Params.sketch12_width")
sketch12.setExpression("Constraints[6]", "Params.sketch12_height")
pad9 = body.newObject("PartDesign::Pad", "Pad008")
pad9.Profile = sketch12
pad9.setExpression("Length", "Params.pad9_length")

# Sketch on XZ plane
sketch13 = body.newObject("Sketcher::SketchObject", "Sketch012")
sketch13.AttachmentSupport = (doc.getObject("XZ_Plane"), [""])
sketch13.MapMode = "FlatFace"
sketch13.AttachmentOffset = App.Placement(Vector(0, 0, 94), App.Rotation())
sketch13.addGeometry([
    Part.LineSegment(Vector(109, -28, 0), Vector(107, -25, 0)),
    Part.LineSegment(Vector(107, -25, 0), Vector(107, -28, 0)),
    Part.LineSegment(Vector(107, -28, 0), Vector(109, -28, 0)),
], False)
sketch13.addConstraint([
    Sketcher.Constraint("Coincident", 0, 2, 1, 1),
    Sketcher.Constraint("Coincident", 1, 2, 2, 1),
    Sketcher.Constraint("Coincident", 2, 2, 0, 1),
    Sketcher.Constraint("Vertical", 1),
    Sketcher.Constraint("Horizontal", 2),
    Sketcher.Constraint("DistanceX", 2, 1, 2, 2, Q("2 mm")),
    Sketcher.Constraint("DistanceY", 1, 2, 1, 1, Q("3 mm")),
    Sketcher.Constraint("DistanceX", -1, 1, 0, 2, Q("107 mm")),
    Sketcher.Constraint("DistanceY", 0, 2, -1, 1, Q("25 mm")),
])
sketch13.setExpression("Constraints[5]", "Params.sketch13_width")
sketch13.setExpression("Constraints[6]", "Params.sketch13_height")
pad10 = body.newObject("PartDesign::Pad", "Pad009")
pad10.Profile = sketch13
pad10.setExpression("Length", "Params.pad10_length")
pad10.Reversed = True
doc.recompute()

datumplane3 = body.newObject("PartDesign::Plane", "DatumPlane002")
datumplane3.AttachmentSupport = (doc.getObject("YZ_Plane"), [""])
datumplane3.MapMode = "FlatFace"
datumplane3.AttachmentOffset = App.Placement(Vector(0, 0, 53.5), App.Rotation())
mirrored3 = body.newObject("PartDesign::Mirrored", "Mirrored002")
mirrored3.Originals = [pad9, pad10]
mirrored3.MirrorPlane = (datumplane3, [""])
body.Tip = mirrored3

# Sketch on XZ plane
sketch14 = body.newObject("Sketcher::SketchObject", "Sketch013")
sketch14.AttachmentSupport = (doc.getObject("XZ_Plane"), [""])
sketch14.MapMode = "FlatFace"
sketch14.AttachmentOffset = App.Placement(Vector(0, 0, 91), App.Rotation())
sketch14.addGeometry([
    Part.LineSegment(Vector(2, -30, 0), Vector(2, 0, 0)),  # 0
    Part.LineSegment(Vector(2, 0, 0), Vector(20, 0, 0)),  # 1
    Part.LineSegment(Vector(20, 0, 0), Vector(5, -10, 0)),  # 2
    Part.LineSegment(Vector(5, -10, 0), Vector(5, -30, 0)),  # 3
    Part.LineSegment(Vector(5, -30, 0), Vector(2, -30, 0)),  # 4
    Part.LineSegment(Vector(102, -30, 0), Vector(102, -10, 0)),  # 5
    Part.LineSegment(Vector(102, -10, 0), Vector(87, 0, 0)),  # 6
    Part.LineSegment(Vector(87, 0, 0), Vector(105, 0, 0)),  # 7
    Part.LineSegment(Vector(105, 0, 0), Vector(105, -30, 0)),  # 8
    Part.LineSegment(Vector(105, -30, 0), Vector(102, -30, 0)),  # 9
], False)
sketch14.addConstraint([
    Sketcher.Constraint("Coincident", 0, 2, 1, 1),
    Sketcher.Constraint("Coincident", 1, 2, 2, 1),
    Sketcher.Constraint("Coincident", 2, 2, 3, 1),
    Sketcher.Constraint("Coincident", 3, 2, 4, 1),
    Sketcher.Constraint("Coincident", 4, 2, 0, 1),
    Sketcher.Constraint("Coincident", 5, 2, 6, 1),
    Sketcher.Constraint("Coincident", 6, 2, 7, 1),
    Sketcher.Constraint("Coincident", 7, 2, 8, 1),
    Sketcher.Constraint("Coincident", 8, 2, 9, 1),
    Sketcher.Constraint("Coincident", 9, 2, 5, 1),
    Sketcher.Constraint("Vertical", 0),
    Sketcher.Constraint("Horizontal", 1),
    Sketcher.Constraint("Vertical", 3),
    Sketcher.Constraint("Horizontal", 4),
    Sketcher.Constraint("Vertical", 5),
    Sketcher.Constraint("Horizontal", 7),
    Sketcher.Constraint("Vertical", 8),
    Sketcher.Constraint("Horizontal", 9),
    Sketcher.Constraint("PointOnObject", 0, 2, -1),
    Sketcher.Constraint("PointOnObject", 6, 2, -1),
    Sketcher.Constraint("Horizontal", 2, 2, 5, 2),
    Sketcher.Constraint("Horizontal", 4, 2, 8, 2),
    Sketcher.Constraint("Equal", 1, 7),
    Sketcher.Constraint("Equal", 4, 9),
    Sketcher.Constraint("DistanceX", 1, 1, 1, 2, Q("18 mm")),
    Sketcher.Constraint("DistanceX", 4, 2, 4, 1, Q("3 mm")),
    Sketcher.Constraint("DistanceY", 0, 1, 0, 2, Q("30 mm")),
    Sketcher.Constraint("DistanceY", 3, 2, 3, 1, Q("20 mm")),
    Sketcher.Constraint("DistanceX", -1, 1, 0, 2, Q("2 mm")),
    Sketcher.Constraint("DistanceX", -1, 1, 5, 2, Q("102 mm")),
])
sketch14.setExpression("Constraints[24]", "Params.sketch14_width")
sketch14.setExpression("Constraints[25]", "Params.sketch14_width2")
sketch14.setExpression("Constraints[26]", "Params.sketch14_height")
sketch14.setExpression("Constraints[27]", "Params.sketch14_height2")
pad11 = body.newObject("PartDesign::Pad", "Pad010")
pad11.Profile = sketch14
pad11.setExpression("Length", "Params.pad11_length")
pad11.Reversed = True

# Sketch on XZ plane
sketch15 = body.newObject("Sketcher::SketchObject", "Sketch014")
sketch15.AttachmentSupport = (doc.getObject("XZ_Plane"), [""])
sketch15.MapMode = "FlatFace"
sketch15.AttachmentOffset = App.Placement(Vector(0, 0, 3), App.Rotation())
sketch15.addGeometry([
    Part.LineSegment(Vector(105, -30, 0), Vector(105, 0, 0)),  # 0
    Part.LineSegment(Vector(105, 0, 0), Vector(87, 0, 0)),  # 1
    Part.LineSegment(Vector(87, 0, 0), Vector(102, -10, 0)),  # 2
    Part.LineSegment(Vector(102, -10, 0), Vector(102, -30, 0)),  # 3
    Part.LineSegment(Vector(102, -30, 0), Vector(105, -30, 0)),  # 4
    Part.LineSegment(Vector(5, -30, 0), Vector(5, -10, 0)),  # 5
    Part.LineSegment(Vector(5, -10, 0), Vector(20, 0, 0)),  # 6
    Part.LineSegment(Vector(20, 0, 0), Vector(2, 0, 0)),  # 7
    Part.LineSegment(Vector(2, 0, 0), Vector(2, -30, 0)),  # 8
    Part.LineSegment(Vector(2, -30, 0), Vector(5, -30, 0)),  # 9
], False)
sketch15.addConstraint([
    Sketcher.Constraint("Coincident", 0, 2, 1, 1),
    Sketcher.Constraint("Coincident", 1, 2, 2, 1),
    Sketcher.Constraint("Coincident", 2, 2, 3, 1),
    Sketcher.Constraint("Coincident", 3, 2, 4, 1),
    Sketcher.Constraint("Coincident", 4, 2, 0, 1),
    Sketcher.Constraint("Coincident", 5, 2, 6, 1),
    Sketcher.Constraint("Coincident", 6, 2, 7, 1),
    Sketcher.Constraint("Coincident", 7, 2, 8, 1),
    Sketcher.Constraint("Coincident", 8, 2, 9, 1),
    Sketcher.Constraint("Coincident", 9, 2, 5, 1),
    Sketcher.Constraint("Vertical", 0),
    Sketcher.Constraint("Horizontal", 1),
    Sketcher.Constraint("Vertical", 3),
    Sketcher.Constraint("Horizontal", 4),
    Sketcher.Constraint("Vertical", 5),
    Sketcher.Constraint("Horizontal", 7),
    Sketcher.Constraint("Vertical", 8),
    Sketcher.Constraint("Horizontal", 9),
    Sketcher.Constraint("PointOnObject", 0, 2, -1),
    Sketcher.Constraint("PointOnObject", 6, 2, -1),
    Sketcher.Constraint("Horizontal", 2, 2, 5, 2),
    Sketcher.Constraint("Horizontal", 4, 2, 8, 2),
    Sketcher.Constraint("Equal", 1, 7),
    Sketcher.Constraint("Equal", 4, 9),
    Sketcher.Constraint("DistanceX", 1, 2, 1, 1, Q("18 mm")),
    Sketcher.Constraint("DistanceX", 4, 1, 4, 2, Q("3 mm")),
    Sketcher.Constraint("DistanceY", 0, 1, 0, 2, Q("30 mm")),
    Sketcher.Constraint("DistanceY", 3, 2, 3, 1, Q("20 mm")),
    Sketcher.Constraint("DistanceX", -1, 1, 0, 2, Q("105 mm")),
    Sketcher.Constraint("DistanceX", -1, 1, 5, 2, Q("5 mm")),
])
sketch15.setExpression("Constraints[24]", "Params.sketch15_width")
sketch15.setExpression("Constraints[25]", "Params.sketch15_width2")
sketch15.setExpression("Constraints[26]", "Params.sketch15_height")
sketch15.setExpression("Constraints[27]", "Params.sketch15_height2")
pad12 = body.newObject("PartDesign::Pad", "Pad011")
pad12.Profile = sketch15
pad12.setExpression("Length", "Params.pad12_length")

# Sketch on YZ plane
sketch16 = body.newObject("Sketcher::SketchObject", "Sketch015")
sketch16.AttachmentSupport = (doc.getObject("YZ_Plane"), [""])
sketch16.MapMode = "FlatFace"
sketch16.addGeometry([
    Part.LineSegment(Vector(-15, -20, 0), Vector(-79, -20, 0)),
    Part.LineSegment(Vector(-79, -20, 0), Vector(-69, 0, 0)),
    Part.LineSegment(Vector(-69, 0, 0), Vector(-25, 0, 0)),
    Part.LineSegment(Vector(-25, 0, 0), Vector(-15, -20, 0)),
], False)
sketch16.addConstraint([
    Sketcher.Constraint("Coincident", 0, 2, 1, 1),
    Sketcher.Constraint("Coincident", 1, 2, 2, 1),
    Sketcher.Constraint("Coincident", 2, 2, 3, 1),
    Sketcher.Constraint("Coincident", 3, 2, 0, 1),
    Sketcher.Constraint("Horizontal", 0),
    Sketcher.Constraint("Horizontal", 2),
    Sketcher.Constraint("PointOnObject", 1, 2, -1),
    Sketcher.Constraint("Equal", 1, 3),
    Sketcher.Constraint("DistanceX", 0, 2, 0, 1, Q("64 mm")),
    Sketcher.Constraint("DistanceX", 2, 1, 2, 2, Q("44 mm")),
    Sketcher.Constraint("DistanceX", 0, 2, -1, 1, Q("79 mm")),
    Sketcher.Constraint("DistanceY", 0, 2, -1, 1, Q("20 mm")),
])
sketch16.setExpression("Constraints[8]", "Params.sketch16_width")
sketch16.setExpression("Constraints[9]", "Params.sketch16_width2")
pad13 = body.newObject("PartDesign::Pad", "Pad012")
pad13.Profile = sketch16
pad13.setExpression("Length", "Params.pad13_length")
doc.recompute()

datumplane4 = body.newObject("PartDesign::Plane", "DatumPlane003")
datumplane4.AttachmentSupport = (doc.getObject("YZ_Plane"), [""])
datumplane4.MapMode = "FlatFace"
datumplane4.AttachmentOffset = App.Placement(Vector(0, 0, 53.5), App.Rotation())
mirrored4 = body.newObject("PartDesign::Mirrored", "Mirrored003")
mirrored4.Originals = [pad13]
mirrored4.MirrorPlane = (datumplane4, [""])
body.Tip = mirrored4

doc.recompute()
